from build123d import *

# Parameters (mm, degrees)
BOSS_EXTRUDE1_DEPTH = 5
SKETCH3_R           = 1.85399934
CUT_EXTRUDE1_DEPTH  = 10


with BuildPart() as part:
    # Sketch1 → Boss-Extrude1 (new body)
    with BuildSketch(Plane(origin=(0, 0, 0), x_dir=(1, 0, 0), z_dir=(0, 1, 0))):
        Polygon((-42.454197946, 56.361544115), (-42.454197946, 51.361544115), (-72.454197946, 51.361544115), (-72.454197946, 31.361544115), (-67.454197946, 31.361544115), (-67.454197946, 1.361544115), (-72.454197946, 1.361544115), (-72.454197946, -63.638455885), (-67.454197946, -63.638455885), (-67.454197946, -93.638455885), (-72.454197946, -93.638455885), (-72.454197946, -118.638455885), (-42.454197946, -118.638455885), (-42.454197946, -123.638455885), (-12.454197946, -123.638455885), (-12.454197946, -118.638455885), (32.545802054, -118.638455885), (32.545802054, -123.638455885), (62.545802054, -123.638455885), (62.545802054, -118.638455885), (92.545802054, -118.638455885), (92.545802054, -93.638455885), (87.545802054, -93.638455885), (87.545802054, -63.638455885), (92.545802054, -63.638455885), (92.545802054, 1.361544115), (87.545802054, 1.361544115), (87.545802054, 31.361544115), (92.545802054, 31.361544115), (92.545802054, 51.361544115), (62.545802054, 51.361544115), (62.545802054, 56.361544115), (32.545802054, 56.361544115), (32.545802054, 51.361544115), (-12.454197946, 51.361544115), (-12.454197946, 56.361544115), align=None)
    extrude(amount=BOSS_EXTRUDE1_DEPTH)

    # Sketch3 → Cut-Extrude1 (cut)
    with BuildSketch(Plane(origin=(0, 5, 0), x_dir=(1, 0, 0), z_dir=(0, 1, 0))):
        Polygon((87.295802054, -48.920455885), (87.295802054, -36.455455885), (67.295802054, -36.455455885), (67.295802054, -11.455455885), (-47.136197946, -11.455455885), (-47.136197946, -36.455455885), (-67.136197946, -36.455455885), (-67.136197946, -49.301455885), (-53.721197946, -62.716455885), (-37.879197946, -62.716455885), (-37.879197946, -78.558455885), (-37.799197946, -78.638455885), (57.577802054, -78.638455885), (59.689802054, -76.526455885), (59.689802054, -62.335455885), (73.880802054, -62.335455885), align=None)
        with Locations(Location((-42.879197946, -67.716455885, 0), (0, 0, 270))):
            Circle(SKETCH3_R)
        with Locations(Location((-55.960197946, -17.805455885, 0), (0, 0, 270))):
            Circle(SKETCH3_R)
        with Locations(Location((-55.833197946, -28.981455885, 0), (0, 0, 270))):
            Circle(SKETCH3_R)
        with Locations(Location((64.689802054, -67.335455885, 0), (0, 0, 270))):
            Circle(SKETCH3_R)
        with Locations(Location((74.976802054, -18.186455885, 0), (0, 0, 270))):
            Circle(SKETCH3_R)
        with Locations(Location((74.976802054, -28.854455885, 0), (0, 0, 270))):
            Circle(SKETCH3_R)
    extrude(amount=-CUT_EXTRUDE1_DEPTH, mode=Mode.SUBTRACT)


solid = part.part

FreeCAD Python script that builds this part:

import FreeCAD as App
import Part
import Sketcher
Q = App.Units.Quantity


def add_polygon(sketch, points):
    """Adds a closed chain of lines whose ends are joined by coincident constraints."""
    first, n = sketch.GeometryCount, len(points)
    for a, b in zip(points, points[1:] + points[:1]):
        sketch.addGeometry(Part.LineSegment(App.Vector(*a, 0), App.Vector(*b, 0)), False)
    for i in range(n):
        sketch.addConstraint(Sketcher.Constraint("Coincident", first + i, 2, first + (i + 1) % n, 1))

doc = App.newDocument("Part")
body = doc.addObject("PartDesign::Body", "Body")

# Sketch on XZ plane
sketch1 = doc.addObject("Sketcher::SketchObject", "Sketch")
body.addObject(sketch1)
sketch1.AttachmentSupport = (doc.XZ_Plane, [""])
sketch1.MapMode = "FlatFace"
add_polygon(sketch1, [(-42, -56), (-42, -51), (-72, -51), (-72, -31), (-67, -31), (-67, -1), (-72, -1), (-72, 64), (-67, 64), (-67, 94), (-72, 94), (-72, 119), (-42, 119), (-42, 124), (-12, 124), (-12, 119), (33, 119), (33, 124), (63, 124), (63, 119), (93, 119), (93, 94), (88, 94), (88, 64), (93, 64), (93, -1), (88, -1), (88, -31), (93, -31), (93, -51), (63, -51), (63, -56), (33, -56), (33, -51), (-12, -51), (-12, -56)])  # lines 0-35
sketch1.addConstraint([
    Sketcher.Constraint("Vertical", 0),
    Sketcher.Constraint("Horizontal", 1),
    Sketcher.Constraint("Vertical", 2),
    Sketcher.Constraint("Horizontal", 3),
    Sketcher.Constraint("Vertical", 4),
    Sketcher.Constraint("Horizontal", 5),
    Sketcher.Constraint("Vertical", 6),
    Sketcher.Constraint("Horizontal", 7),
    Sketcher.Constraint("Vertical", 8),
    Sketcher.Constraint("Horizontal", 9),
    Sketcher.Constraint("Vertical", 10),
    Sketcher.Constraint("Horizontal", 11),
    Sketcher.Constraint("Vertical", 12),
    Sketcher.Constraint("Horizontal", 13),
    Sketcher.Constraint("Vertical", 14),
    Sketcher.Constraint("Horizontal", 15),
    Sketcher.Constraint("Vertical", 16),
    Sketcher.Constraint("Horizontal", 17),
    Sketcher.Constraint("Vertical", 18),
    Sketcher.Constraint("Horizontal", 19),
    Sketcher.Constraint("Vertical", 20),
    Sketcher.Constraint("Horizontal", 21),
    Sketcher.Constraint("Vertical", 22),
    Sketcher.Constraint("Horizontal", 23),
    Sketcher.Constraint("Vertical", 24),
    Sketcher.Constraint("Horizontal", 25),
    Sketcher.Constraint("Vertical", 26),
    Sketcher.Constraint("Horizontal", 27),
    Sketcher.Constraint("Vertical", 28),
    Sketcher.Constraint("Horizontal", 29),
    Sketcher.Constraint("Vertical", 30),
    Sketcher.Constraint("Horizontal", 31),
    Sketcher.Constraint("Vertical", 32),
    Sketcher.Constraint("Horizontal", 33),
    Sketcher.Constraint("Vertical", 34),
    Sketcher.Constraint("Horizontal", 35),
    Sketcher.Constraint("Horizontal", 11, 2, 14, 2),
    Sketcher.Constraint("Horizontal", 13, 2, 16, 2),
    Sketcher.Constraint("Horizontal", 15, 2, 18, 2),
    Sketcher.Constraint("Horizontal", 9, 2, 20, 2),
    Sketcher.Constraint("Horizontal", 7, 2, 22, 2),
    Sketcher.Constraint("Horizontal", 5, 2, 24, 2),
    Sketcher.Constraint("Horizontal", 3, 2, 26, 2),
    Sketcher.Constraint("Horizontal", 1, 2, 28, 2),
    Sketcher.Constraint("Horizontal", 29, 2, 32, 2),
    Sketcher.Constraint("Horizontal", 31, 2, 34, 2),
    Sketcher.Constraint("Vertical", 2, 2, 5, 2),
    Sketcher.Constraint("Vertical", 4, 2, 7, 2),
    Sketcher.Constraint("Vertical", 6, 2, 9, 2),
    Sketcher.Constraint("Vertical", 0, 2, 11, 2),
    Sketcher.Constraint("Vertical", 20, 2, 23, 2),
    Sketcher.Constraint("Vertical", 22, 2, 25, 2),
    Sketcher.Constraint("Vertical", 24, 2, 27, 2),
    Sketcher.Constraint("Vertical", 18, 2, 29, 2),
    Sketcher.Constraint("Vertical", 16, 2, 31, 2),
    Sketcher.Constraint("Vertical", 14, 2, 33, 2),
    Sketcher.Constraint("Equal", 11, 13),
    Sketcher.Constraint("Equal", 13, 17),
    Sketcher.Constraint("Equal", 17, 19),
    Sketcher.Constraint("Equal", 9, 21),
    Sketcher.Constraint("Equal", 27, 0),
    Sketcher.Constraint("Equal", 35, 4),
    Sketcher.Constraint("Equal", 4, 8),
    Sketcher.Constraint("Equal", 0, 12),
    Sketcher.Constraint("DistanceX", 1, 2, 1, 1, Q("30 mm")),
    Sketcher.Constraint("DistanceX", 3, 1, 3, 2, Q("5 mm")),
    Sketcher.Constraint("DistanceX", 15, 1, 15, 2, Q("45 mm")),
    Sketcher.Constraint("DistanceY", 2, 1, 2, 2, Q("20 mm")),
    Sketcher.Constraint("DistanceY", 6, 1, 6, 2, Q("65 mm")),
    Sketcher.Constraint("DistanceY", 10, 1, 10, 2, Q("25 mm")),
    Sketcher.Constraint("DistanceX", 0, 2, -1, 1, Q("42.454198 mm")),
    Sketcher.Constraint("DistanceY", 0, 2, -1, 1, Q("51.361544 mm")),
])
pad1 = doc.addObject("PartDesign::Pad", "Pad")
body.addObject(pad1)
pad1.Profile = sketch1
pad1.Length = 5
pad1.Reversed = True

# Sketch on XZ plane
sketch2 = doc.addObject("Sketcher::SketchObject", "Sketch001")
body.addObject(sketch2)
sketch2.AttachmentSupport = (doc.XZ_Plane, [""])
sketch2.MapMode = "FlatFace"
sketch2.AttachmentOffset = App.Placement(App.Vector(0, 0, -5), App.Rotation())
add_polygon(sketch2, [(87.3, 48.92), (87.3, 36.46), (67.3, 36.46), (67.3, 11.46), (-47.14, 11.46), (-47.14, 36.46), (-67.14, 36.46), (-67.14, 49.3), (-53.72, 62.72), (-37.88, 62.72), (-37.88, 78.56), (-37.8, 78.64), (57.58, 78.64), (59.69, 76.53), (59.69, 62.34), (73.88, 62.34)])  # lines 0-15
sketch2.addGeometry(Part.Circle(App.Vector(-42.88, 67.72, 0), App.Vector(0, 0, 1), 1.85), False)  # 16
sketch2.addGeometry(Part.Circle(App.Vector(-55.96, 17.81, 0), App.Vector(0, 0, 1), 1.85), False)  # 17
sketch2.addGeometry(Part.Circle(App.Vector(-55.83, 28.98, 0), App.Vector(0, 0, 1), 1.85), False)  # 18
sketch2.addGeometry(Part.Circle(App.Vector(64.69, 67.34, 0), App.Vector(0, 0, 1), 1.85), False)  # 19
sketch2.addGeometry(Part.Circle(App.Vector(74.98, 18.19, 0), App.Vector(0, 0, 1), 1.85), False)  # 20
sketch2.addGeometry(Part.Circle(App.Vector(74.98, 28.85, 0), App.Vector(0, 0, 1), 1.85), False)  # 21
sketch2.addConstraint([
    Sketcher.Constraint("Vertical", 0),
    Sketcher.Constraint("Horizontal", 1),
    Sketcher.Constraint("Vertical", 2),
    Sketcher.Constraint("Horizontal", 3),
    Sketcher.Constraint("Vertical", 4),
    Sketcher.Constraint("Horizontal", 5),
    Sketcher.Constraint("Vertical", 6),
    Sketcher.Constraint("Horizontal", 8),
    Sketcher.Constraint("Vertical", 9),
    Sketcher.Constraint("Horizontal", 11),
    Sketcher.Constraint("Vertical", 13),
    Sketcher.Constraint("Horizontal", 14),
    Sketcher.Constraint("Equal", 16, 17),
    Sketcher.Constraint("Equal", 17, 18),
    Sketcher.Constraint("Equal", 18, 19),
    Sketcher.Constraint("Equal", 19, 20),
    Sketcher.Constraint("Equal", 20, 21),
    Sketcher.Constraint("Parallel", 7, 10),
    Sketcher.Constraint("Perpendicular", 10, 12),
    Sketcher.Constraint("Parallel", 12, 15),
    Sketcher.Constraint("Horizontal", 1, 2, 4, 2),
    Sketcher.Constraint("Vertical", 20, 3, 21, 3),
    Sketcher.Constraint("Equal", 1, 5),
    Sketcher.Constraint("Equal", 8, 9),
    Sketcher.Constraint("Equal", 14, 13),
    Sketcher.Constraint("Equal", 7, 15),
    Sketcher.Constraint("DistanceX", 1, 2, 1, 1, Q("20 mm")),
    Sketcher.Constraint("DistanceY", 2, 2, 2, 1, Q("25 mm")),
    Sketcher.Constraint("Angle", 7, Q("45 deg")),
    Sketcher.Constraint("Diameter", 16, Q("3.707999 mm")),
    Sketcher.Constraint("DistanceY", 7, 2, 16, 3, Q("5 mm")),
    Sketcher.Constraint("DistanceX", 16, 3, 8, 2, Q("5 mm")),
    Sketcher.Constraint("DistanceX", 12, 2, 19, 3, Q("5 mm")),
    Sketcher.Constraint("DistanceY", 13, 2, 19, 3, Q("5 mm")),
    Sketcher.Constraint("DistanceX", 3, 2, 3, 1, Q("114.432 mm")),
    Sketcher.Constraint("DistanceX", 8, 1, 8, 2, Q("15.842 mm")),
    Sketcher.Constraint("DistanceX", 11, 1, 11, 2, Q("95.377 mm")),
    Sketcher.Constraint("DistanceX", 14, 1, 14, 2, Q("14.191 mm")),
    Sketcher.Constraint("DistanceY", 0, 2, 0, 1, Q("12.465 mm")),
    Sketcher.Constraint("DistanceY", 6, 1, 6, 2, Q("12.846 mm")),
    Sketcher.Constraint("DistanceX", 17, 3, 19, 3, Q("120.65 mm")),
    Sketcher.Constraint("DistanceY", 17, 3, 19, 3, Q("49.53 mm")),
    Sketcher.Constraint("DistanceY", 20, 3, 16, 3, Q("49.53 mm")),
    Sketcher.Constraint("DistanceX", 18, 3, 20, 3, Q("130.81 mm")),
    Sketcher.Constraint("DistanceY", 0, 2, 19, 3, Q("30.88 mm")),
    Sketcher.Constraint("DistanceY", 18, 3, 6, 2, Q("20.32 mm")),
    Sketcher.Constraint("DistanceX", 17, 3, 18, 3, Q("0.127 mm")),
    Sketcher.Constraint("DistanceY", 20, 3, 21, 3, Q("10.668 mm")),
    Sketcher.Constraint("DistanceX", 16, 3, -1, 1, Q("42.879198 mm")),
    Sketcher.Constraint("DistanceY", -1, 1, 16, 3, Q("67.716456 mm")),
])
pocket1 = doc.addObject("PartDesign::Pocket", "Pocket")
body.addObject(pocket1)
pocket1.Profile = sketch2
pocket1.Length = 10
pocket1.Reversed = True

doc.recompute()
